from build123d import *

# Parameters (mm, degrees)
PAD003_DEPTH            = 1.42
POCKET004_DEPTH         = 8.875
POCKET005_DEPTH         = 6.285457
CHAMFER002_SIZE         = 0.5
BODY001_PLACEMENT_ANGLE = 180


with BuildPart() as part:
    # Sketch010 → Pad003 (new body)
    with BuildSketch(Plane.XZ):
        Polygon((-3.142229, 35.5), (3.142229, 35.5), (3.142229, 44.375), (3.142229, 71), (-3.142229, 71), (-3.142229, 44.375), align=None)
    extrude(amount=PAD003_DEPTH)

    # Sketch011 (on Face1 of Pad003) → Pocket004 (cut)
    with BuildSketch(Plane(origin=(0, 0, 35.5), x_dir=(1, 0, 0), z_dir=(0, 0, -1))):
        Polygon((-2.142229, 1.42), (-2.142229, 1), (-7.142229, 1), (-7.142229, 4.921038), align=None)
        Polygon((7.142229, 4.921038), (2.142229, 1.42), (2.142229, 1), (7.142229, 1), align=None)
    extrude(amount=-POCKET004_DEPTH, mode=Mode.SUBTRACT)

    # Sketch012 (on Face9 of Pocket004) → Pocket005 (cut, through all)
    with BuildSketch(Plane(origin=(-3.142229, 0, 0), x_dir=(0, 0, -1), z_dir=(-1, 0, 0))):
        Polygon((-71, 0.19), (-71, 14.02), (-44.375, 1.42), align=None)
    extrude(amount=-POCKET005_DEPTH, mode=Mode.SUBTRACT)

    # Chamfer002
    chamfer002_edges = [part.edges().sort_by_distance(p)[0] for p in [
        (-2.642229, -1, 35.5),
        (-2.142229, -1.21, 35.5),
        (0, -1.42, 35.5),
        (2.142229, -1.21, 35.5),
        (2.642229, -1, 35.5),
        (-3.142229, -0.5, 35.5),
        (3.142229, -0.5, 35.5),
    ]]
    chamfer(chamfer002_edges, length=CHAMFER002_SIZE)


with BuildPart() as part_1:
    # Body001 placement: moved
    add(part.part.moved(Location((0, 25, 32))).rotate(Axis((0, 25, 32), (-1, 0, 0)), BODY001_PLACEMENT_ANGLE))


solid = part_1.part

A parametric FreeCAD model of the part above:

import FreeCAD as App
import Part
import Sketcher

V = App.Vector
Q = App.Units.Quantity


def edges_at(feature, points):
    """Names of the edges that pass closest to the given points."""
    edges = feature.Shape.Edges
    near = lambda p: min(range(len(edges)), key=lambda i: edges[i].distToShape(Part.Vertex(*p))[0])
    return sorted({f"Edge{near(p) + 1}" for p in points})

doc = App.newDocument("Part")
params = doc.addObject("Spreadsheet::Sheet", "Params")
for row, (alias, value) in enumerate([
    ("sketch1_height", "35.5 mm"),
    ("pad1_length", "1.42 mm"),
    ("sketch2_width", "5 mm"),
    ("sketch2_height", "0.42 mm"),
    ("pocket1_length", "8.875 mm"),
    ("sketch3_width", "13.83 mm"),
    ("chamfer_size", "0.5 mm"),
], start=1):
    params.set(f"A{row}", alias)
    params.set(f"B{row}", "=" + value)
    params.setAlias(f"B{row}", alias)

body = doc.addObject("PartDesign::Body", "Body")

sketch1 = body.newObject("Sketcher::SketchObject", "Sketch")
sketch1.AttachmentSupport = (doc.getObject("XZ_Plane"), [""])
sketch1.MapMode = "FlatFace"
sketch1.addGeometry(Part.LineSegment(V(-3, 36, 0), V(3, 36, 0)), False)
sketch1.addGeometry(Part.LineSegment(V(3, 36, 0), V(3, 71, 0)), False)
sketch1.addGeometry(Part.LineSegment(V(3, 71, 0), V(-3, 71, 0)), False)
sketch1.addGeometry(Part.LineSegment(V(-3, 71, 0), V(-3, 36, 0)), False)
sketch1.addConstraint(Sketcher.Constraint("Coincident", 0, 2, 1, 1))
sketch1.addConstraint(Sketcher.Constraint("Coincident", 1, 2, 2, 1))
sketch1.addConstraint(Sketcher.Constraint("Coincident", 2, 2, 3, 1))
sketch1.addConstraint(Sketcher.Constraint("Coincident", 3, 2, 0, 1))
sketch1.addConstraint(Sketcher.Constraint("Horizontal", 0))
sketch1.addConstraint(Sketcher.Constraint("Vertical", 1))
sketch1.addConstraint(Sketcher.Constraint("Horizontal", 2))
sketch1.addConstraint(Sketcher.Constraint("Vertical", 3))
sketch1.addConstraint(Sketcher.Constraint("DistanceY", 1, 1, 1, 2, Q("35.5 mm")))
sketch1.addConstraint(Sketcher.Constraint("DistanceY", -1, 1, 1, 2, Q("71 mm")))
sketch1.addConstraint(Sketcher.Constraint("DistanceX", 0, 1, 0, 2, Q("6.284458 mm")))
sketch1.addConstraint(Sketcher.Constraint("DistanceX", -1, 1, 0, 2, Q("3.142229 mm")))
sketch1.setExpression("Constraints[8]", "Params.sketch1_height")
pad1 = body.newObject("PartDesign::Pad", "Pad")
pad1.Profile = sketch1
pad1.setExpression("Length", "Params.pad1_length")

sketch2 = body.newObject("Sketcher::SketchObject", "Sketch001")
sketch2.AttachmentSupport = (doc.getObject("XY_Plane"), [""])
sketch2.MapMode = "FlatFace"
sketch2.AttachmentOffset = App.Placement(V(0, 0, 35.5), App.Rotation())
sketch2.addGeometry(Part.LineSegment(V(-2.14, -1, 0), V(-2.14, -1.42, 0)), False)
sketch2.addGeometry(Part.LineSegment(V(-2.14, -1.42, 0), V(-7.14, -4.92, 0)), False)
sketch2.addGeometry(Part.LineSegment(V(-7.14, -4.92, 0), V(-7.14, -1, 0)), False)
sketch2.addGeometry(Part.LineSegment(V(-7.14, -1, 0), V(-2.14, -1, 0)), False)
sketch2.addGeometry(Part.LineSegment(V(7.14, -4.92, 0), V(2.14, -1.42, 0)), False)
sketch2.addGeometry(Part.LineSegment(V(2.14, -1.42, 0), V(2.14, -1, 0)), False)
sketch2.addGeometry(Part.LineSegment(V(2.14, -1, 0), V(7.14, -1, 0)), False)
sketch2.addGeometry(Part.LineSegment(V(7.14, -1, 0), V(7.14, -4.92, 0)), False)
sketch2.addConstraint(Sketcher.Constraint("Coincident", 0, 2, 1, 1))
sketch2.addConstraint(Sketcher.Constraint("Coincident", 1, 2, 2, 1))
sketch2.addConstraint(Sketcher.Constraint("Coincident", 2, 2, 3, 1))
sketch2.addConstraint(Sketcher.Constraint("Coincident", 3, 2, 0, 1))
sketch2.addConstraint(Sketcher.Constraint("Coincident", 4, 2, 5, 1))
sketch2.addConstraint(Sketcher.Constraint("Coincident", 5, 2, 6, 1))
sketch2.addConstraint(Sketcher.Constraint("Coincident", 6, 2, 7, 1))
sketch2.addConstraint(Sketcher.Constraint("Coincident", 7, 2, 4, 1))
sketch2.addConstraint(Sketcher.Constraint("Vertical", 0))
sketch2.addConstraint(Sketcher.Constraint("Vertical", 2))
sketch2.addConstraint(Sketcher.Constraint("Horizontal", 3))
sketch2.addConstraint(Sketcher.Constraint("Vertical", 5))
sketch2.addConstraint(Sketcher.Constraint("Horizontal", 6))
sketch2.addConstraint(Sketcher.Constraint("Vertical", 7))
sketch2.addConstraint(Sketcher.Constraint("Symmetric", 0, 2, 4, 2, -2))
sketch2.addConstraint(Sketcher.Constraint("Symmetric", 2, 2, 6, 2, -2))
sketch2.addConstraint(Sketcher.Constraint("Horizontal", 1, 2, 7, 2))
sketch2.addConstraint(Sketcher.Constraint("DistanceX", 3, 1, 3, 2, Q("5 mm")))
sketch2.addConstraint(Sketcher.Constraint("Angle", 1, Q("-144.999998 deg")))
sketch2.addConstraint(Sketcher.Constraint("DistanceY", 2, 2, -1, 1, Q("1 mm")))
sketch2.addConstraint(Sketcher.Constraint("DistanceY", 0, 2, 0, 1, Q("0.42 mm")))
sketch2.addConstraint(Sketcher.Constraint("DistanceX", 0, 2, -1, 1, Q("2.142229 mm")))
sketch2.setExpression("Constraints[17]", "Params.sketch2_width")
sketch2.setExpression("Constraints[20]", "Params.sketch2_height")
pocket1 = body.newObject("PartDesign::Pocket", "Pocket")
pocket1.Profile = sketch2
pocket1.setExpression("Length", "Params.pocket1_length")
pocket1.Reversed = True

sketch3 = body.newObject("Sketcher::SketchObject", "Sketch002")
sketch3.AttachmentSupport = (doc.getObject("YZ_Plane"), [""])
sketch3.MapMode = "FlatFace"
sketch3.AttachmentOffset = App.Placement(V(0, 0, -3.142229), App.Rotation())
sketch3.addGeometry(Part.LineSegment(V(-14, 71, 0), V(0, 71, 0)), False)
sketch3.addGeometry(Part.LineSegment(V(0, 71, 0), V(-1, 44, 0)), False)
sketch3.addGeometry(Part.LineSegment(V(-1, 44, 0), V(-14, 71, 0)), False)
sketch3.addConstraint(Sketcher.Constraint("Coincident", 0, 2, 1, 1))
sketch3.addConstraint(Sketcher.Constraint("Coincident", 1, 2, 2, 1))
sketch3.addConstraint(Sketcher.Constraint("Coincident", 2, 2, 0, 1))
sketch3.addConstraint(Sketcher.Constraint("Horizontal", 0))
sketch3.addConstraint(Sketcher.Constraint("DistanceY", -1, 1, 0, 2, Q("71 mm")))
sketch3.addConstraint(Sketcher.Constraint("DistanceX", 0, 1, 0, 2, Q("13.83 mm")))
sketch3.addConstraint(Sketcher.Constraint("DistanceX", 2, 2, 1, 2, Q("12.6 mm")))
sketch3.addConstraint(Sketcher.Constraint("DistanceX", 0, 2, -1, 1, Q("0.19 mm")))
sketch3.addConstraint(Sketcher.Constraint("DistanceY", -1, 1, 1, 2, Q("44.375 mm")))
sketch3.setExpression("Constraints[5]", "Params.sketch3_width")
pocket2 = body.newObject("PartDesign::Pocket", "Pocket001")
pocket2.Profile = sketch3
pocket2.Type = "ThroughAll"
pocket2.Reversed = True
doc.recompute()

chamfer = body.newObject("PartDesign::Chamfer", "Chamfer")
chamfer.Base = (pocket2, edges_at(pocket2, [
    (-2.642, -1, 35.5),
    (-2.142, -1.21, 35.5),
    (0, -1.42, 35.5),
    (2.142, -1.21, 35.5),
    (2.642, -1, 35.5),
    (-3.142, -0.5, 35.5),
    (3.142, -0.5, 35.5),
]))
chamfer.setExpression("Size", "Params.chamfer_size")
body2 = doc.addObject("PartDesign::Body", "Body001")
doc.recompute()

body.Placement = App.Placement(V(0, 25, 32), App.Rotation(V(-1, 0, 0), 180))
boolean = body2.newObject("PartDesign::Boolean", "Boolean")
boolean.Type = "Fuse"
boolean.addObjects([body])

doc.recompute()
